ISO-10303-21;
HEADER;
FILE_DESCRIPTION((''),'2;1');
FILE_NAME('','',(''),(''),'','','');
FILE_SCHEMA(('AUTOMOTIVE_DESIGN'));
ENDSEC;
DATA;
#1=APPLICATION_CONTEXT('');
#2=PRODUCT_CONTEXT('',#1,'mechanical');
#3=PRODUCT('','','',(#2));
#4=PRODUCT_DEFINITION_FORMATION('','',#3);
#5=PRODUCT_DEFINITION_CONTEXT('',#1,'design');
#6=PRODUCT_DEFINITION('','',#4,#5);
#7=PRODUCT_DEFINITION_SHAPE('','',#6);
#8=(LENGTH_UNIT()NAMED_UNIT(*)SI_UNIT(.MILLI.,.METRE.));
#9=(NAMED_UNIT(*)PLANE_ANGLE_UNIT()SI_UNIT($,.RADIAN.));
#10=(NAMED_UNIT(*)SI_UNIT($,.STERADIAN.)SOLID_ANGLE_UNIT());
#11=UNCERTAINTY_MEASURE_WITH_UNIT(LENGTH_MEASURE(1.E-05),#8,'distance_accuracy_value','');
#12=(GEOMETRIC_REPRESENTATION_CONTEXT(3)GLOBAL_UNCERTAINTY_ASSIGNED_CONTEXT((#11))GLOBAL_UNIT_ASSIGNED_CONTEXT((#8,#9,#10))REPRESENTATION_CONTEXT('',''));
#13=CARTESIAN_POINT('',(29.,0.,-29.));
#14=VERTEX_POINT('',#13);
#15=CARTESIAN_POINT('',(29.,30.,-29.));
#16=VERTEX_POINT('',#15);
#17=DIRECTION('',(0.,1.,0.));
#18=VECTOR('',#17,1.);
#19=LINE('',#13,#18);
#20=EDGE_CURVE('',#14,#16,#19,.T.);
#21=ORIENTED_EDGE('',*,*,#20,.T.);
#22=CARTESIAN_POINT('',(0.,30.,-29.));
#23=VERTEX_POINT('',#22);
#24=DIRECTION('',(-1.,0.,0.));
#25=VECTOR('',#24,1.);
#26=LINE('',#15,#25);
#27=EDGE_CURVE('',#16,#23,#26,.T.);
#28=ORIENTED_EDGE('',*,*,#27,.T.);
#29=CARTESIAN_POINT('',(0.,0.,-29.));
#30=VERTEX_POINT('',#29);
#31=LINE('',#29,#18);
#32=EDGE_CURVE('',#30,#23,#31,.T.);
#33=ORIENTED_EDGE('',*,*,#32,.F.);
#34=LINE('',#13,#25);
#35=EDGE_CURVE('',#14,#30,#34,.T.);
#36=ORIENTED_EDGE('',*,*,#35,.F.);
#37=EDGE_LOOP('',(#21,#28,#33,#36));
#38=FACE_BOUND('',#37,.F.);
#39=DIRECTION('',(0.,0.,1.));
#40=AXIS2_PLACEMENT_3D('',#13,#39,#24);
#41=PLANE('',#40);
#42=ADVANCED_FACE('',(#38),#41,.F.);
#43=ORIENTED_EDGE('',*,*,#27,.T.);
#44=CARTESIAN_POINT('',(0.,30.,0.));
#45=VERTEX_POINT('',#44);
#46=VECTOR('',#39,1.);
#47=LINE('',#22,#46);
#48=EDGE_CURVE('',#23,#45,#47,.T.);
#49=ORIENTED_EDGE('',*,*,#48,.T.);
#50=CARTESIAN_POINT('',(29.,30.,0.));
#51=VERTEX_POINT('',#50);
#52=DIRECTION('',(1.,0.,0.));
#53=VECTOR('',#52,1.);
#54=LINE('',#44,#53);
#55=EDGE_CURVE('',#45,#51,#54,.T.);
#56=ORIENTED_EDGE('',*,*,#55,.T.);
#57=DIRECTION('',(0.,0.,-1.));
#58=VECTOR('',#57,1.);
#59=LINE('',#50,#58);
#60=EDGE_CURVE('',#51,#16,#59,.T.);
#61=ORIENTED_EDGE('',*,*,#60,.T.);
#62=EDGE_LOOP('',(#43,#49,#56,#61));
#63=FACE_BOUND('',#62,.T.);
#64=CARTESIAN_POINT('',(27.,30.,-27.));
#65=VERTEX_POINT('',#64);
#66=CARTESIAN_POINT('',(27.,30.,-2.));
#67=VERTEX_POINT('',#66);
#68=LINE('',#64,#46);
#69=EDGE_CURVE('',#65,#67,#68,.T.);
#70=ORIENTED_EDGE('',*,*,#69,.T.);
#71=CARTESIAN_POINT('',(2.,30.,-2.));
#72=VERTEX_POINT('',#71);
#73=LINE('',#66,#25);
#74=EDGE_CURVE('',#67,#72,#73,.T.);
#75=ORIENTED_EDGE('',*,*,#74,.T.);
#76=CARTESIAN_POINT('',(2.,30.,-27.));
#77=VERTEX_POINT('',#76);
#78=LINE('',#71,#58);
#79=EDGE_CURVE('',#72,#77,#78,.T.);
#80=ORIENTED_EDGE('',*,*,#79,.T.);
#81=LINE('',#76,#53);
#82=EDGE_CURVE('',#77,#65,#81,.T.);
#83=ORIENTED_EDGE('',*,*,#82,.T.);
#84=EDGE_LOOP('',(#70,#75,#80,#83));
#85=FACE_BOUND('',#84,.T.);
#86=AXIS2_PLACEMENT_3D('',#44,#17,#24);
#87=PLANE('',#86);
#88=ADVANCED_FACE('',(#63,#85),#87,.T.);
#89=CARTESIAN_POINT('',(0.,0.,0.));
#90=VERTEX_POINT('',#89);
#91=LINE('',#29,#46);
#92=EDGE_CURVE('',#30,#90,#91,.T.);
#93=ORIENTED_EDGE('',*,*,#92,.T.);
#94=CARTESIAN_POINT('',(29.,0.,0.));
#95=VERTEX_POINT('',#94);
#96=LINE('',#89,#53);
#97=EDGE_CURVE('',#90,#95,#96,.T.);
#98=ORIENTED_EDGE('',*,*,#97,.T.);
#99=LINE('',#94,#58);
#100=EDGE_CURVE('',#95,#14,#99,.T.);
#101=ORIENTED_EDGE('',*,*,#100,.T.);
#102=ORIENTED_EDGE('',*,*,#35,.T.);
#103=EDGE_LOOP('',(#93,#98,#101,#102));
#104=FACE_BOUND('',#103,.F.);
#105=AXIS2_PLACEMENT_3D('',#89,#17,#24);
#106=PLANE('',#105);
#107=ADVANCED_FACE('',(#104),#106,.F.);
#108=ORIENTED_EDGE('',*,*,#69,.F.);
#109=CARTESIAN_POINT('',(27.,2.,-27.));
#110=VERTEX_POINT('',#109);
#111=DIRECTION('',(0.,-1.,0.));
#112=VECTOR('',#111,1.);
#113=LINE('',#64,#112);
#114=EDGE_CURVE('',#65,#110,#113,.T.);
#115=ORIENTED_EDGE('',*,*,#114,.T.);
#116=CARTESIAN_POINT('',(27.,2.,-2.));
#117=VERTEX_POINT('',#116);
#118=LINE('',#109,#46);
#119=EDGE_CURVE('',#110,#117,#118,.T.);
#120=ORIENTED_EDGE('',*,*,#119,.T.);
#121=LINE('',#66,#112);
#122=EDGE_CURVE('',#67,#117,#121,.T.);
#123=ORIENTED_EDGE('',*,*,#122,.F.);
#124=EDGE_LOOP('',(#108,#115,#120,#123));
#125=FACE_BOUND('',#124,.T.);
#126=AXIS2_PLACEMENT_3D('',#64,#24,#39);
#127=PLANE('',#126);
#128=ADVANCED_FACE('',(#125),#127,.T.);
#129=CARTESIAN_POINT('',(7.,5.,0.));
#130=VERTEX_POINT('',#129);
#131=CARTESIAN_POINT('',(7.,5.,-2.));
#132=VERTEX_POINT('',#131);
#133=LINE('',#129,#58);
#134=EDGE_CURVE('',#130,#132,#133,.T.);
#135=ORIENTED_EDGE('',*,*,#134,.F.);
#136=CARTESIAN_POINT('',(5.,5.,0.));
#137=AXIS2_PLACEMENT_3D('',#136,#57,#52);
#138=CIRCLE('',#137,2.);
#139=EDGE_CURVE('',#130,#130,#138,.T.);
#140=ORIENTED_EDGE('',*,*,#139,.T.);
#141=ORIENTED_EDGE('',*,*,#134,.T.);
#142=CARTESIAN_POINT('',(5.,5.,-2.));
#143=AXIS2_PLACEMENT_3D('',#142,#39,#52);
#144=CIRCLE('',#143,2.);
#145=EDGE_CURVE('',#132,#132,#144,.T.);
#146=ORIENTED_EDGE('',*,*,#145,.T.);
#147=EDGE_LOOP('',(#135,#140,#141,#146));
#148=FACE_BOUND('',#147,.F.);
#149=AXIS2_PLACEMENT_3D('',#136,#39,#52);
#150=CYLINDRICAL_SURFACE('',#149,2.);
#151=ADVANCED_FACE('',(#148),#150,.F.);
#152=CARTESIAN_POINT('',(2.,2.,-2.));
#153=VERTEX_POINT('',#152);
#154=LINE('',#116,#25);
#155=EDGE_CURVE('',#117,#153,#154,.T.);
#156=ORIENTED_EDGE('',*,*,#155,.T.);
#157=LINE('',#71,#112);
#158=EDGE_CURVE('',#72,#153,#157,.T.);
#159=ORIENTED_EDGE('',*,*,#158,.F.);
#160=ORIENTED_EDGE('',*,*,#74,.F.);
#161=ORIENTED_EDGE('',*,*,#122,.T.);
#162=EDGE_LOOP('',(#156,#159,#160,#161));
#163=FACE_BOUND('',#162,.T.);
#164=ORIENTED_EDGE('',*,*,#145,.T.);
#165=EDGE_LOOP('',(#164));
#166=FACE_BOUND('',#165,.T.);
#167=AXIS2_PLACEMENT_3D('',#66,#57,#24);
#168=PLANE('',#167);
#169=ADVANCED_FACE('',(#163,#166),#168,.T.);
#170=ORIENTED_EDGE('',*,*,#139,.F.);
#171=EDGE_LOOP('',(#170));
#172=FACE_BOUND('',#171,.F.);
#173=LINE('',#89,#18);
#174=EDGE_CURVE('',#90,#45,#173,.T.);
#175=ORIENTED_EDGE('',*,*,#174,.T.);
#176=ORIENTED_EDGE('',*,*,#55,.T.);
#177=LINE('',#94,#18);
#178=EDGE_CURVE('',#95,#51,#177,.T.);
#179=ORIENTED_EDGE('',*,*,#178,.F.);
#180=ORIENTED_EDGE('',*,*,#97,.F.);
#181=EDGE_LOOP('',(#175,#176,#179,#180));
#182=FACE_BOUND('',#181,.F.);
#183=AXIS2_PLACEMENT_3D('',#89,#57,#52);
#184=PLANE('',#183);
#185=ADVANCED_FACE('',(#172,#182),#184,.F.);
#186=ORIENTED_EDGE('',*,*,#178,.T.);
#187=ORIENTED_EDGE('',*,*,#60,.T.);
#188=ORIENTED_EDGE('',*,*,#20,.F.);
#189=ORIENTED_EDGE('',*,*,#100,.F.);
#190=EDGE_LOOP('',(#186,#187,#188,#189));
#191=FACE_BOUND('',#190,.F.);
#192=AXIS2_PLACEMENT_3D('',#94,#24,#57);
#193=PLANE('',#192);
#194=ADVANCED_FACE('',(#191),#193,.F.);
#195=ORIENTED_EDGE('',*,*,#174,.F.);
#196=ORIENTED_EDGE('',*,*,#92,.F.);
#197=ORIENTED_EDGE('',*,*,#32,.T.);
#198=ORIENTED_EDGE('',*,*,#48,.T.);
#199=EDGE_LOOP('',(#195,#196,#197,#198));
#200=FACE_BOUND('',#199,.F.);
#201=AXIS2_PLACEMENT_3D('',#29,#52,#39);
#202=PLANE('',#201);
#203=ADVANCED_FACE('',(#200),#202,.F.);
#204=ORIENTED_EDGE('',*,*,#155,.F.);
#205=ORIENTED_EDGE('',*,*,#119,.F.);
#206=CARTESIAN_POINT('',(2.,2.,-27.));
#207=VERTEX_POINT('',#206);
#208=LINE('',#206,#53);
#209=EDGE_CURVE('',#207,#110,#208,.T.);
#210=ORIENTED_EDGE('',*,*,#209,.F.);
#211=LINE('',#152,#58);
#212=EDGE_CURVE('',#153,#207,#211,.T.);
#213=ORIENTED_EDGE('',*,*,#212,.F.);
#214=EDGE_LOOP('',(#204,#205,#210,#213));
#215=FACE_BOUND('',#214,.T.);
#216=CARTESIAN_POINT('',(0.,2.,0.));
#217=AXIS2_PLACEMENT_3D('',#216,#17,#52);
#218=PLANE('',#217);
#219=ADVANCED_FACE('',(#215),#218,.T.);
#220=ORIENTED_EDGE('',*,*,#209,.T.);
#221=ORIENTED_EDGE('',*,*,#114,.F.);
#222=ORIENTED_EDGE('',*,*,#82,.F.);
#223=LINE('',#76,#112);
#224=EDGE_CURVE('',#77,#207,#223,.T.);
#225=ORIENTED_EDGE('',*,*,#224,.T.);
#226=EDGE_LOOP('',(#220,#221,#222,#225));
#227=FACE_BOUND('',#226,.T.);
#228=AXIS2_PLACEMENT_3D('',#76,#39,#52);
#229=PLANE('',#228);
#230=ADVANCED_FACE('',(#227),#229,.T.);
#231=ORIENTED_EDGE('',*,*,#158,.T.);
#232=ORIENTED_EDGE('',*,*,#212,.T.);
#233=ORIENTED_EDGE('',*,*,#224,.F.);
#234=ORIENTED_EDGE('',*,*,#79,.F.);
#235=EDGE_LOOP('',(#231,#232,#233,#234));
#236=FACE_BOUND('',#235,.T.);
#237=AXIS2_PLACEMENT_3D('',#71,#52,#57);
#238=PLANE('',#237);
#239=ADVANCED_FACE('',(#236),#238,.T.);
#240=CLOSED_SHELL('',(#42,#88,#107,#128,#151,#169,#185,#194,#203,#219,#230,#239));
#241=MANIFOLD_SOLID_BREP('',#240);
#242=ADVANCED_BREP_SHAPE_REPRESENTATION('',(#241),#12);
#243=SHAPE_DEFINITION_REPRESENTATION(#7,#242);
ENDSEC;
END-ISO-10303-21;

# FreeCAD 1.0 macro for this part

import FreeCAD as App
import Part
import Sketcher

doc = App.newDocument("Part")
body = doc.addObject("PartDesign::Body", "Body")

# Sketch on XZ plane
sketch1 = body.newObject("Sketcher::SketchObject", "Sketch")
sketch1.AttachmentSupport = (doc.getObject("XZ_Plane"), [""])
sketch1.MapMode = "FlatFace"
sketch1.addGeometry([
    Part.LineSegment(App.Vector(0, -29, 0), App.Vector(0, 0, 0)),
    Part.LineSegment(App.Vector(0, 0, 0), App.Vector(29, 0, 0)),
    Part.LineSegment(App.Vector(29, 0, 0), App.Vector(29, -29, 0)),
    Part.LineSegment(App.Vector(29, -29, 0), App.Vector(0, -29, 0)),
], False)
sketch1.addConstraint([
    Sketcher.Constraint("Coincident", 0, 2, 1, 1),
    Sketcher.Constraint("Coincident", 1, 2, 2, 1),
    Sketcher.Constraint("Coincident", 2, 2, 3, 1),
    Sketcher.Constraint("Coincident", 3, 2, 0, 1),
    Sketcher.Constraint("Vertical", 0),
    Sketcher.Constraint("Horizontal", 1),
    Sketcher.Constraint("Vertical", 2),
    Sketcher.Constraint("Horizontal", 3),
    Sketcher.Constraint("Coincident", 0, 2, -1, 1),
    Sketcher.Constraint("Equal", 3, 0),
    Sketcher.Constraint("DistanceX", 1, 1, 1, 2, 29.0),
])
pad1 = body.newObject("PartDesign::Pad", "Pad")
pad1.Profile = sketch1
pad1.Length = 30
pad1.Reversed = True

# Sketch on XZ plane
sketch2 = body.newObject("Sketcher::SketchObject", "Sketch001")
sketch2.AttachmentSupport = (doc.getObject("XZ_Plane"), [""])
sketch2.MapMode = "FlatFace"
sketch2.AttachmentOffset = App.Placement(App.Vector(0, 0, -30), App.Rotation())
sketch2.addGeometry([
    Part.LineSegment(App.Vector(27, -27, 0), App.Vector(2, -27, 0)),
    Part.LineSegment(App.Vector(2, -27, 0), App.Vector(2, -2, 0)),
    Part.LineSegment(App.Vector(2, -2, 0), App.Vector(27, -2, 0)),
    Part.LineSegment(App.Vector(27, -2, 0), App.Vector(27, -27, 0)),
], False)
sketch2.addConstraint([
    Sketcher.Constraint("Coincident", 0, 2, 1, 1),
    Sketcher.Constraint("Coincident", 1, 2, 2, 1),
    Sketcher.Constraint("Coincident", 2, 2, 3, 1),
    Sketcher.Constraint("Coincident", 3, 2, 0, 1),
    Sketcher.Constraint("Horizontal", 0),
    Sketcher.Constraint("Vertical", 1),
    Sketcher.Constraint("Horizontal", 2),
    Sketcher.Constraint("Vertical", 3),
    Sketcher.Constraint("Equal", 2, 1),
    Sketcher.Constraint("DistanceX", -1, 1, 0, 2, 2.0),
    Sketcher.Constraint("DistanceY", 1, 2, -1, 1, 2.0),
    Sketcher.Constraint("DistanceX", 0, 2, 0, 1, 25.0),
])
pocket1 = body.newObject("PartDesign::Pocket", "Pocket")
pocket1.Profile = sketch2
pocket1.Length = 28
pocket1.Reversed = True

# Sketch on XY plane
sketch3 = body.newObject("Sketcher::SketchObject", "Sketch002")
sketch3.AttachmentSupport = (doc.getObject("XY_Plane"), [""])
sketch3.MapMode = "FlatFace"
sketch3.addGeometry(Part.Circle(App.Vector(5, 5, 0), App.Vector(0, 0, 1), 2), False)
sketch3.addConstraint([
    Sketcher.Constraint("Diameter", 0, 4.0),
    Sketcher.Constraint("DistanceX", -1, 1, 0, 3, 5.0),
    Sketcher.Constraint("DistanceY", -1, 1, 0, 3, 5.0),
])
pocket2 = body.newObject("PartDesign::Pocket", "Pocket001")
pocket2.Profile = sketch3
pocket2.Length = 2

doc.recompute()
